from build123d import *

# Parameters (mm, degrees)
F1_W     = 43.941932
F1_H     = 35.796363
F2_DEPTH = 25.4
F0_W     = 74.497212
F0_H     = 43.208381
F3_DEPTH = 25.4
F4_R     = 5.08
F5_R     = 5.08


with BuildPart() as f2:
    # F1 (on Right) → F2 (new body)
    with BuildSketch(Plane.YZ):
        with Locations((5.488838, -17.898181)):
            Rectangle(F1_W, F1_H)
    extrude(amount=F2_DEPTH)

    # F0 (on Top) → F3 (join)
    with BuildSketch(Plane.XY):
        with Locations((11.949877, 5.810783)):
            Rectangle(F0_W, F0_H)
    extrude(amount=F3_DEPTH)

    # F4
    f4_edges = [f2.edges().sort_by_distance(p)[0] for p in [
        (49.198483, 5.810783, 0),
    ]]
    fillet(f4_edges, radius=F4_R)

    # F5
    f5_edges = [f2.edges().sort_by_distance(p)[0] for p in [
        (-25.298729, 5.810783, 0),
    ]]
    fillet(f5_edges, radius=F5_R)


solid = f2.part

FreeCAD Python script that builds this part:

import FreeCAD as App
import Part
import Sketcher
from FreeCAD import Vector
Q = App.Units.Quantity


def edges_at(feature, points):
    """Names of the edges that pass closest to the given points."""
    edges = feature.Shape.Edges
    near = lambda p: min(range(len(edges)), key=lambda i: edges[i].distToShape(Part.Vertex(*p))[0])
    return sorted({f"Edge{near(p) + 1}" for p in points})


def add_polygon(sketch, points):
    """Adds a closed chain of lines whose ends are joined by coincident constraints."""
    first, n = sketch.GeometryCount, len(points)
    for a, b in zip(points, points[1:] + points[:1]):
        sketch.addGeometry(Part.LineSegment(App.Vector(*a, 0), App.Vector(*b, 0)), False)
    for i in range(n):
        sketch.addConstraint(Sketcher.Constraint("Coincident", first + i, 2, first + (i + 1) % n, 1))

doc = App.newDocument("Part")
body = doc.addObject("PartDesign::Body", "Body")

# Sketch on YZ plane
sketch1 = body.newObject("Sketcher::SketchObject", "Sketch")
sketch1.AttachmentSupport = (doc.getObject("YZ_Plane"), [""])
sketch1.MapMode = "FlatFace"
add_polygon(sketch1, [(-16, 0), (-16, -36), (27, -36), (27, 0)])  # lines 0-3
sketch1.addConstraint([
    Sketcher.Constraint("Vertical", 0),
    Sketcher.Constraint("Horizontal", 1),
    Sketcher.Constraint("Vertical", 2),
    Sketcher.Constraint("Horizontal", 3),
    Sketcher.Constraint("PointOnObject", 2, 2, -1),
    Sketcher.Constraint("DistanceX", 1, 1, 1, 2, 43.941932),
    Sketcher.Constraint("DistanceY", 0, 2, 0, 1, 35.796363),
    Sketcher.Constraint("DistanceX", 0, 2, -1, 1, 16.482128),
])
pad1 = body.newObject("PartDesign::Pad", "Pad")
pad1.Profile = sketch1
pad1.Length = Q("1 in")

# Sketch on XY plane
sketch2 = body.newObject("Sketcher::SketchObject", "Sketch001")
sketch2.AttachmentSupport = (doc.getObject("XY_Plane"), [""])
sketch2.MapMode = "FlatFace"
add_polygon(sketch2, [(-25, 27), (-25, -16), (49, -16), (49, 27)])  # lines 0-3
sketch2.addConstraint([
    Sketcher.Constraint("Vertical", 0),
    Sketcher.Constraint("Horizontal", 1),
    Sketcher.Constraint("Vertical", 2),
    Sketcher.Constraint("Horizontal", 3),
    Sketcher.Constraint("DistanceY", 0, 2, 0, 1, 43.208381),
    Sketcher.Constraint("DistanceX", 1, 1, 1, 2, 74.497212),
    Sketcher.Constraint("DistanceX", 0, 2, -1, 1, 25.298729),
    Sketcher.Constraint("DistanceY", 0, 2, -1, 1, 15.793408),
])
pad2 = body.newObject("PartDesign::Pad", "Pad001")
pad2.Profile = sketch2
pad2.Length = Q("1 in")
doc.recompute()

fillet = body.newObject("PartDesign::Fillet", "Fillet")
fillet.Base = (pad2, edges_at(pad2, [(49.198, 5.811, 0)]))
fillet.Radius = Q("0.2 in")
doc.recompute()

fillet2 = body.newObject("PartDesign::Fillet", "Fillet001")
fillet2.Base = (fillet, edges_at(fillet, [(-25.299, 5.811, 0)]))
fillet2.Radius = Q("0.2 in")

doc.recompute()
